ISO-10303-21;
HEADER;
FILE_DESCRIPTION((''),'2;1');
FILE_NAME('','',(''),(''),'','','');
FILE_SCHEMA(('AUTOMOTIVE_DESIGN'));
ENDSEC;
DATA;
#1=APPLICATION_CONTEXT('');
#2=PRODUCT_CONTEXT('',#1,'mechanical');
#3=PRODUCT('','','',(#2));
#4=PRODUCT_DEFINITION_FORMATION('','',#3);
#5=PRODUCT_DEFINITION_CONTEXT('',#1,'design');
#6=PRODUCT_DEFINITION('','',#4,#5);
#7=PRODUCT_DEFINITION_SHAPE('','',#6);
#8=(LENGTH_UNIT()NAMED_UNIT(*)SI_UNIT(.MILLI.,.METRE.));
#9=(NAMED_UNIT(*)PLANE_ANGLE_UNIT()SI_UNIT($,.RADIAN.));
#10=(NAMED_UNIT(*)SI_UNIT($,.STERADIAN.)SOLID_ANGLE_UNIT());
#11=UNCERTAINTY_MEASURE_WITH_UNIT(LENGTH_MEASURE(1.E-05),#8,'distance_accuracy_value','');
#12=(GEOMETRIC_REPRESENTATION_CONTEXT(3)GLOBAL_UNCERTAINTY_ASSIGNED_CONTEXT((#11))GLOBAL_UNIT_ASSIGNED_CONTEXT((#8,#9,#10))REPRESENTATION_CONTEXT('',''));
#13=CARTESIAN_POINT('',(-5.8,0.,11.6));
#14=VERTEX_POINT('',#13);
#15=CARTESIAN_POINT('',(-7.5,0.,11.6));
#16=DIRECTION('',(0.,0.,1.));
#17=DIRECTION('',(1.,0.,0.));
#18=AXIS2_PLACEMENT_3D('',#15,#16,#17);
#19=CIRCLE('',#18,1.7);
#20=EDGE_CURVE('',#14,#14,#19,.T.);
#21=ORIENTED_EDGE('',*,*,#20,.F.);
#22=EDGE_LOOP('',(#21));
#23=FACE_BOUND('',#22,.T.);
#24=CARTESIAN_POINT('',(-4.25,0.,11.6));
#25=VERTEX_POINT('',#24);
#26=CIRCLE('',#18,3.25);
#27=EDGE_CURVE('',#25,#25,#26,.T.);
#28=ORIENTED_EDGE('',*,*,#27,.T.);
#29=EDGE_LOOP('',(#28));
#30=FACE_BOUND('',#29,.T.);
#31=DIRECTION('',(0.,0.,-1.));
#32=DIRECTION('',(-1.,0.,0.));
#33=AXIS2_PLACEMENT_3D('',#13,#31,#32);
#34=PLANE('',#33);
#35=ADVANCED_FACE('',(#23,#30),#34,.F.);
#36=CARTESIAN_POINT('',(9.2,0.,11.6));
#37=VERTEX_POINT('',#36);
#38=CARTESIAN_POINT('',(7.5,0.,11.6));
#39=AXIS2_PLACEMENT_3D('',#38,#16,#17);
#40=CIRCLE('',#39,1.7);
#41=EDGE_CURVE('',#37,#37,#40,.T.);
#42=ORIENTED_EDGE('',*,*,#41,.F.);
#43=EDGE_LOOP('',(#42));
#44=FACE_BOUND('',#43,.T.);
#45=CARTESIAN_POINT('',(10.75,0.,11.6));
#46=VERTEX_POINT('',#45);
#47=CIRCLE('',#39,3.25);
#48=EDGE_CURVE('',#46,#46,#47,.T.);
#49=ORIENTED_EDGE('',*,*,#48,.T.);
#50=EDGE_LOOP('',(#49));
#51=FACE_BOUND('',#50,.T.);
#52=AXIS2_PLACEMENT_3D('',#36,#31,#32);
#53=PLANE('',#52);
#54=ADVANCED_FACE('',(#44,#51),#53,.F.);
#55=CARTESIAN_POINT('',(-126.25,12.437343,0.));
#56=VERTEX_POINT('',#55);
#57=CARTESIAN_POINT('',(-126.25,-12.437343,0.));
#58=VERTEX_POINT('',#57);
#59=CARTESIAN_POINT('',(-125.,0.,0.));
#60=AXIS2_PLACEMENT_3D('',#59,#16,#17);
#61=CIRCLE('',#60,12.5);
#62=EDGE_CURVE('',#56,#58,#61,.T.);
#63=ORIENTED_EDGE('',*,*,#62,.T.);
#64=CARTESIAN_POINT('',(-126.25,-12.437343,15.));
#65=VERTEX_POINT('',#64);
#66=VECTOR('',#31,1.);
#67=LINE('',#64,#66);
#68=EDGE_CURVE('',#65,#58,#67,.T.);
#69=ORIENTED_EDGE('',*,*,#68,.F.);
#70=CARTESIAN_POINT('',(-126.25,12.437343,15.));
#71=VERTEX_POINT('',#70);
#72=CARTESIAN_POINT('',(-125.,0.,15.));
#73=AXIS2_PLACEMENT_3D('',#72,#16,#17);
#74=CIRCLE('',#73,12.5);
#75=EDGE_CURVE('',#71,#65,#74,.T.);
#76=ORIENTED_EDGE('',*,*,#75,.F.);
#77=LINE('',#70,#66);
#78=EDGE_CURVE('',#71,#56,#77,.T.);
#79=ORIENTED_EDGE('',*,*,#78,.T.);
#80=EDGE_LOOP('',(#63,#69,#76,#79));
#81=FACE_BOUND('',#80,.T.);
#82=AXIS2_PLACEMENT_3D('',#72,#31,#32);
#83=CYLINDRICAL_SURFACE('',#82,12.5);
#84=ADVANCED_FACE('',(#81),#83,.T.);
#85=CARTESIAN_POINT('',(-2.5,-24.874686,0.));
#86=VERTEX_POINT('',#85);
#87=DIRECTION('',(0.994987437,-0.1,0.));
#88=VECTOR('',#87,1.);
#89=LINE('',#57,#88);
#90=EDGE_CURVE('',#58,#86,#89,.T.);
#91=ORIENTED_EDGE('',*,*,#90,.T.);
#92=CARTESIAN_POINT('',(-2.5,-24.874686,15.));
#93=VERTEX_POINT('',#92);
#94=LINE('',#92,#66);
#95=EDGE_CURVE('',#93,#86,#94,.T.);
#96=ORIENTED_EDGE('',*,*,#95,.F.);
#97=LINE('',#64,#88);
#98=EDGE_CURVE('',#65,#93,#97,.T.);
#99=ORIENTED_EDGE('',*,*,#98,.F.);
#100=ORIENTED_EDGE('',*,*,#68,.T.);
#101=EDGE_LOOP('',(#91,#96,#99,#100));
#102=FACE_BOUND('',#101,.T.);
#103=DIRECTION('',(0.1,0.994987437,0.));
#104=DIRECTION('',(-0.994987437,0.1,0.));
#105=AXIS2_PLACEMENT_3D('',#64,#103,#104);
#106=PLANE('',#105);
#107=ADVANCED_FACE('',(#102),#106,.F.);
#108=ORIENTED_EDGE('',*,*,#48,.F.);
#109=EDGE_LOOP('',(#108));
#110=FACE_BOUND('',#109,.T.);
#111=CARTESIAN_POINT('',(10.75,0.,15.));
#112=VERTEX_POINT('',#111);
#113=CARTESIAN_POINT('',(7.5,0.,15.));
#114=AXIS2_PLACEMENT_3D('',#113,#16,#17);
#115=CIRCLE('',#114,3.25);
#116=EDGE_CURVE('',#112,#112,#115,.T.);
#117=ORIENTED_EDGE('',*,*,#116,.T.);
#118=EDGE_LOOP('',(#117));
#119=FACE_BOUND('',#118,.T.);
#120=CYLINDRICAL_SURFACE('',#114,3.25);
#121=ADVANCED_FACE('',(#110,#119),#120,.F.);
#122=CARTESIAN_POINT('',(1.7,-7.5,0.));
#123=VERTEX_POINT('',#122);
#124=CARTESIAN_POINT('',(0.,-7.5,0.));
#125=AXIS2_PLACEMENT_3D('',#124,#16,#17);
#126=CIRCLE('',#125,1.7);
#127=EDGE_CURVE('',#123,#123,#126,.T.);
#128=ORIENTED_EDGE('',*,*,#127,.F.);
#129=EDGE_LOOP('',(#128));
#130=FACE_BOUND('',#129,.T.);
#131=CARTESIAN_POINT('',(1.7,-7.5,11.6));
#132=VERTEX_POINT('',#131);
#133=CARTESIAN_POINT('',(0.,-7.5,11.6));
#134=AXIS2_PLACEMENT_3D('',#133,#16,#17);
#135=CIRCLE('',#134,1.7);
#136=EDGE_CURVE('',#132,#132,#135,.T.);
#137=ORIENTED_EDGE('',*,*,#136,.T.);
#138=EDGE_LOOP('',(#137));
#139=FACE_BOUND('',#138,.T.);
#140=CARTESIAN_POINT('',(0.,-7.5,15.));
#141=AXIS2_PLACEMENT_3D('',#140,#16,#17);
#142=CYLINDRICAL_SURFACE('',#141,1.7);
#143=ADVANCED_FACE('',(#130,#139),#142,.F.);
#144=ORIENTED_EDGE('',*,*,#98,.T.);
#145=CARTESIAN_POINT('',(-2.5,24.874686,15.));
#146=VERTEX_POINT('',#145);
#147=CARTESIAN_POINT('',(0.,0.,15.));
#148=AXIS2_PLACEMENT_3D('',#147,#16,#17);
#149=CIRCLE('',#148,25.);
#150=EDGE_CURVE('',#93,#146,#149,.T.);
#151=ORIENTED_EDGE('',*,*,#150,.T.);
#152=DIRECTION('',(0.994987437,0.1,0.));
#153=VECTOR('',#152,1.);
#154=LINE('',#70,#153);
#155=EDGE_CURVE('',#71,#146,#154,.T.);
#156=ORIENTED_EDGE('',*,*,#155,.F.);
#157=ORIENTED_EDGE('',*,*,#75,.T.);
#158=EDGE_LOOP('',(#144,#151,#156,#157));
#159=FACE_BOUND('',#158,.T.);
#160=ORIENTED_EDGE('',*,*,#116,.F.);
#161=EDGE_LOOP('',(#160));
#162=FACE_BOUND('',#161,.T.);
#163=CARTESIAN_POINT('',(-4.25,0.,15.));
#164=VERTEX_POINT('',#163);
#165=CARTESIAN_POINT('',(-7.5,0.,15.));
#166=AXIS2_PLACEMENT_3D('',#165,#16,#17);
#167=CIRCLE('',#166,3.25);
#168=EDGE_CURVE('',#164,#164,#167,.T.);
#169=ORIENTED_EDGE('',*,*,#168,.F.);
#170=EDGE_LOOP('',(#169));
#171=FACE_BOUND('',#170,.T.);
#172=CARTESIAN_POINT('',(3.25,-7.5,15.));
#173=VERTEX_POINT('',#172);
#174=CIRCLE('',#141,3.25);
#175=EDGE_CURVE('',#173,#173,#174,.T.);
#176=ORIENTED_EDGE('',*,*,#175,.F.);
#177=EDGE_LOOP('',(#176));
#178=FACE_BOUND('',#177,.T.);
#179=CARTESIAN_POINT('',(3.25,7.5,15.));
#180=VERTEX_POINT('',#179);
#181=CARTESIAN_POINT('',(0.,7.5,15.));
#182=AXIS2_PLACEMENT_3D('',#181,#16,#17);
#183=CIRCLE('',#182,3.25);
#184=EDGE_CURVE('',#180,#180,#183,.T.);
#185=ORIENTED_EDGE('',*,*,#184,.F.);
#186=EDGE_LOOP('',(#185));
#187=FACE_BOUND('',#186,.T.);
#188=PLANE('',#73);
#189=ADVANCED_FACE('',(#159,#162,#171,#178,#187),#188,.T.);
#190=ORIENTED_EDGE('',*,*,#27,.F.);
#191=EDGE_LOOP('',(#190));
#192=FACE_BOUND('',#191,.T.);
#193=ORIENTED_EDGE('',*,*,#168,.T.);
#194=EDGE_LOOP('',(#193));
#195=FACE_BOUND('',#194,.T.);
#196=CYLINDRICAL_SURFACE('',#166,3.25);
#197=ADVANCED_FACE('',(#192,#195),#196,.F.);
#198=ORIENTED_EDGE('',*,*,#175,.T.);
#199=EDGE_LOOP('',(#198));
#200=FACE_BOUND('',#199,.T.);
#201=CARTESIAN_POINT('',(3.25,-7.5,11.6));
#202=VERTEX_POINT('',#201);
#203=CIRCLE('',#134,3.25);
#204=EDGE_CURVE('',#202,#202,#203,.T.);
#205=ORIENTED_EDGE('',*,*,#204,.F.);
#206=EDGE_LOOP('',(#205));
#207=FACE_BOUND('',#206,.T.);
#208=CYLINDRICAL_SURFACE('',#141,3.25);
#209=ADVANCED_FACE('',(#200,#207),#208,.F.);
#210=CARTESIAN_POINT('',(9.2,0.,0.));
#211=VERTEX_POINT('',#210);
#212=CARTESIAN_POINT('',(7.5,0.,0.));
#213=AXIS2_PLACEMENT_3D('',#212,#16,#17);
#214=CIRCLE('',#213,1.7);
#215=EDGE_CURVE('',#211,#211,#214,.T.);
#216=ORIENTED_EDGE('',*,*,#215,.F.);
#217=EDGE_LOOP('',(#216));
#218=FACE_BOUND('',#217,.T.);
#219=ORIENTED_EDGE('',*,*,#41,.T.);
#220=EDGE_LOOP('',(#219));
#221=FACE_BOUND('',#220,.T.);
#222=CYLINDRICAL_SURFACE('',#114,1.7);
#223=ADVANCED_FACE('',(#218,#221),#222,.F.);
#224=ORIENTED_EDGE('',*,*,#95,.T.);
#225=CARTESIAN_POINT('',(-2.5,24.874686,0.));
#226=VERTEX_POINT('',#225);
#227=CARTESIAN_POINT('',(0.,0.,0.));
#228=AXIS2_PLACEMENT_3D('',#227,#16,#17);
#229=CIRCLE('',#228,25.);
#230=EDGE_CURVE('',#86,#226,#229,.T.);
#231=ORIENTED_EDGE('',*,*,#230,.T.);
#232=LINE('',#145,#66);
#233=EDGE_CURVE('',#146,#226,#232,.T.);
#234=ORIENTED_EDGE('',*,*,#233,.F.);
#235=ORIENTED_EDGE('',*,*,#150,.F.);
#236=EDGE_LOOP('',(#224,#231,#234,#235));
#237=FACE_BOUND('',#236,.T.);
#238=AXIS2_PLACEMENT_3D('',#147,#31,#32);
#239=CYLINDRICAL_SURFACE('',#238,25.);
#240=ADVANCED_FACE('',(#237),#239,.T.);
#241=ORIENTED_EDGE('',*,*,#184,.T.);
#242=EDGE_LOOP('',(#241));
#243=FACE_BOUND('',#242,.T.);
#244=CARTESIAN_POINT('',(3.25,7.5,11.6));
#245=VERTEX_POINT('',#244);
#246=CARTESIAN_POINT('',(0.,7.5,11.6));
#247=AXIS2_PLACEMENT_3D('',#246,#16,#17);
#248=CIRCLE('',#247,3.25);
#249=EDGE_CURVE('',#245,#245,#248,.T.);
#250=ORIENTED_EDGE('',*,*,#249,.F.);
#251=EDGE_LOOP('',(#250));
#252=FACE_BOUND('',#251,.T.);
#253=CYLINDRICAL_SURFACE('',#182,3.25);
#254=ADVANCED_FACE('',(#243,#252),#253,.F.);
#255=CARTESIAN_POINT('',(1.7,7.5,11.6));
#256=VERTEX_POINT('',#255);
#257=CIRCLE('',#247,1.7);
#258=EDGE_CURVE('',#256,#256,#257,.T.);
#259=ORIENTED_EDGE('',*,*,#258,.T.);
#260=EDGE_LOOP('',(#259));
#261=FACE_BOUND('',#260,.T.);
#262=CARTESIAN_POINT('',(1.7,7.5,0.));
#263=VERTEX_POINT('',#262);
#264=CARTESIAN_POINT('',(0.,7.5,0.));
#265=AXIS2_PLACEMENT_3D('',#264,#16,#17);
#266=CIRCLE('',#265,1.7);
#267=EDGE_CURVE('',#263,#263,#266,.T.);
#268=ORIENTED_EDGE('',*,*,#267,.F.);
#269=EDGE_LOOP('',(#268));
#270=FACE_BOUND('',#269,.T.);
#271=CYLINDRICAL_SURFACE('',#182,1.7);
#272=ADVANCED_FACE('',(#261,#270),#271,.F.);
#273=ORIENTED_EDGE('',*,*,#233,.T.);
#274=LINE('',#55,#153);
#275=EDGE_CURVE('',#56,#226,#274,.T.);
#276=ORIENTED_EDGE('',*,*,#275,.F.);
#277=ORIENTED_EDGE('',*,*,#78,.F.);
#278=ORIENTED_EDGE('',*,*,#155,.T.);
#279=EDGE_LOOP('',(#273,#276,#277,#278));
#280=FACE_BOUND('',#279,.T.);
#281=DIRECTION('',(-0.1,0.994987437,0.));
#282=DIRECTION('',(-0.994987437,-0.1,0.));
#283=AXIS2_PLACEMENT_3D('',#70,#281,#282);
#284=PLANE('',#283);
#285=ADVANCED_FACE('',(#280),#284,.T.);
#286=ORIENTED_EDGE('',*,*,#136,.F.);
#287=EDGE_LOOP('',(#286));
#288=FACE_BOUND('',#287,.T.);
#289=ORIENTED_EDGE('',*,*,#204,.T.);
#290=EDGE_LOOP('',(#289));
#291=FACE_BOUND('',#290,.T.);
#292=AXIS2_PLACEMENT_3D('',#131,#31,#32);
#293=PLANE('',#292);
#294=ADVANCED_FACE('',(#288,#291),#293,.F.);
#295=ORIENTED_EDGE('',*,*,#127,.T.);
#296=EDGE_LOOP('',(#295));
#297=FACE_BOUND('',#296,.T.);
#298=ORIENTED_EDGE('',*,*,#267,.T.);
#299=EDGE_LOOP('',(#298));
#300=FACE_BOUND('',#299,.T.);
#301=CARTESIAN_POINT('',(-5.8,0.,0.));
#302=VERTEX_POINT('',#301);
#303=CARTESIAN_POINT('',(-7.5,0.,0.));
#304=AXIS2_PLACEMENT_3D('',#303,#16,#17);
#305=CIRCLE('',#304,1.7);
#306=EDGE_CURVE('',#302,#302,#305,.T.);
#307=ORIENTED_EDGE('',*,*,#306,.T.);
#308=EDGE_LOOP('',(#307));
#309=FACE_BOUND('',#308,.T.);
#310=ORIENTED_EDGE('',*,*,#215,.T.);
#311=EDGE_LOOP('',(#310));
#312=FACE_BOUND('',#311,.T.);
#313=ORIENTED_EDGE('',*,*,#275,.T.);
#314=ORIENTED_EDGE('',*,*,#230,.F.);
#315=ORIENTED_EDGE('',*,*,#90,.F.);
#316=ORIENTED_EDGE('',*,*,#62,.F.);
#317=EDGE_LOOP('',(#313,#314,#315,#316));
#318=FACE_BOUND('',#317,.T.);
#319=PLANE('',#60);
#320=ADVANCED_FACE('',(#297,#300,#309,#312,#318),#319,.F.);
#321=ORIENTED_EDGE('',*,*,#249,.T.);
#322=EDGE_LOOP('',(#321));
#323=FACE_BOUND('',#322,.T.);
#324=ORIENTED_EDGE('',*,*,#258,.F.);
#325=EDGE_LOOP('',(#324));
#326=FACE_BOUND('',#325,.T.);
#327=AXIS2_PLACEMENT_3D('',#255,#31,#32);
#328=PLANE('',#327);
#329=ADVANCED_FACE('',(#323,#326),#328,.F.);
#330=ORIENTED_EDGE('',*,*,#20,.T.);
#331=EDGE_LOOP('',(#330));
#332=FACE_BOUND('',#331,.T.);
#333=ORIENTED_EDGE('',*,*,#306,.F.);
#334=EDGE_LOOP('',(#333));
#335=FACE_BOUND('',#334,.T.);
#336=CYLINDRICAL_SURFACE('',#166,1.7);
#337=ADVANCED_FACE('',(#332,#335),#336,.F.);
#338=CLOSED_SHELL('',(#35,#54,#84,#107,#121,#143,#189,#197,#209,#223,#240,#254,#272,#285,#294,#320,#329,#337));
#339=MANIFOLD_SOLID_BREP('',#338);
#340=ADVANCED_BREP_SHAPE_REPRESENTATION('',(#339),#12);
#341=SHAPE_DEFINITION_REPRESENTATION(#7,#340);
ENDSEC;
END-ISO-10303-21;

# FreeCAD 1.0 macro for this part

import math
import FreeCAD as App
import Part
import Sketcher

V = App.Vector
Q = App.Units.Quantity

doc = App.newDocument("Part")
body = doc.addObject("PartDesign::Body", "Body")

# Sketch on XY plane
sketch1 = body.newObject("Sketcher::SketchObject", "Sketch")
sketch1.AttachmentSupport = (doc.getObject("XY_Plane"), [""])
sketch1.MapMode = "FlatFace"
sketch1.addGeometry(Part.LineSegment(V(-2.5, 24.874686, 0), V(-126.25, 12.437343, 0)), False)
sketch1.addGeometry(Part.ArcOfCircle(Part.Circle(V(-125, 0, 0), V(0, 0, 1), 12.5), math.radians(95.73917), math.radians(264.26083)), False)
sketch1.addGeometry(Part.LineSegment(V(-126.25, -12.437343, 0), V(-2.5, -24.874686, 0)), False)
sketch1.addGeometry(Part.ArcOfCircle(Part.Circle(V(0, 0, 0), V(0, 0, 1), 25), math.radians(-95.73917), math.radians(95.73917)), False)
sketch1.addConstraint(Sketcher.Constraint("Tangent", 0, 2, 1, 1))
sketch1.addConstraint(Sketcher.Constraint("Tangent", 1, 2, 2, 1))
sketch1.addConstraint(Sketcher.Constraint("Tangent", 2, 2, 3, 1))
sketch1.addConstraint(Sketcher.Constraint("Tangent", 3, 2, 0, 1))
sketch1.addConstraint(Sketcher.Constraint("Coincident", 3, 3, -1, 1))
sketch1.addConstraint(Sketcher.Constraint("PointOnObject", 1, 3, -1))
sketch1.addConstraint(Sketcher.Constraint("Radius", 3, Q("25 mm")))
sketch1.addConstraint(Sketcher.Constraint("Radius", 1, Q("12.5 mm")))
sketch1.addConstraint(Sketcher.Constraint("DistanceX", 1, 3, -1, 1, Q("125 mm")))
pad1 = body.newObject("PartDesign::Pad", "Pad")
pad1.Profile = sketch1
pad1.Length = 15

# Sketch on XY plane
sketch2 = body.newObject("Sketcher::SketchObject", "Sketch001")
sketch2.AttachmentSupport = (doc.getObject("XY_Plane"), [""])
sketch2.MapMode = "FlatFace"
sketch2.AttachmentOffset = App.Placement(V(0, 0, 15), App.Rotation())
sketch2.addGeometry(Part.Circle(V(0, 7.5, 0), V(0, 0, 1), 1.7), False)
sketch2.addGeometry(Part.Circle(V(7.5, 0, 0), V(0, 0, 1), 1.7), False)
sketch2.addGeometry(Part.Circle(V(0, -7.5, 0), V(0, 0, 1), 1.7), False)
sketch2.addGeometry(Part.Circle(V(-7.5, 0, 0), V(0, 0, 1), 1.7), False)
sketch2.addConstraint(Sketcher.Constraint("Equal", 0, 1))
sketch2.addConstraint(Sketcher.Constraint("Equal", 1, 2))
sketch2.addConstraint(Sketcher.Constraint("Equal", 2, 3))
sketch2.addConstraint(Sketcher.Constraint("Symmetric", 0, 3, 2, 3, -1, 1))
sketch2.addConstraint(Sketcher.Constraint("Symmetric", 1, 3, 3, 3, -1, 1))
sketch2.addConstraint(Sketcher.Constraint("PointOnObject", 0, 3, -2))
sketch2.addConstraint(Sketcher.Constraint("PointOnObject", 1, 3, -1))
sketch2.addConstraint(Sketcher.Constraint("Diameter", 0, Q("3.4 mm")))
sketch2.addConstraint(Sketcher.Constraint("DistanceY", 2, 3, 0, 3, Q("15 mm")))
sketch2.addConstraint(Sketcher.Constraint("DistanceX", 3, 3, 1, 3, Q("15 mm")))
doc.recompute()
hole = body.newObject("PartDesign::Hole", "Hole")
hole.Profile = sketch2
hole.ThreadType = "None"
hole.Diameter = 3.4
hole.DepthType = "ThroughAll"
hole.HoleCutType = "Counterbore"
hole.HoleCutDiameter = 6.5
hole.HoleCutDepth = 3.4

doc.recompute()
